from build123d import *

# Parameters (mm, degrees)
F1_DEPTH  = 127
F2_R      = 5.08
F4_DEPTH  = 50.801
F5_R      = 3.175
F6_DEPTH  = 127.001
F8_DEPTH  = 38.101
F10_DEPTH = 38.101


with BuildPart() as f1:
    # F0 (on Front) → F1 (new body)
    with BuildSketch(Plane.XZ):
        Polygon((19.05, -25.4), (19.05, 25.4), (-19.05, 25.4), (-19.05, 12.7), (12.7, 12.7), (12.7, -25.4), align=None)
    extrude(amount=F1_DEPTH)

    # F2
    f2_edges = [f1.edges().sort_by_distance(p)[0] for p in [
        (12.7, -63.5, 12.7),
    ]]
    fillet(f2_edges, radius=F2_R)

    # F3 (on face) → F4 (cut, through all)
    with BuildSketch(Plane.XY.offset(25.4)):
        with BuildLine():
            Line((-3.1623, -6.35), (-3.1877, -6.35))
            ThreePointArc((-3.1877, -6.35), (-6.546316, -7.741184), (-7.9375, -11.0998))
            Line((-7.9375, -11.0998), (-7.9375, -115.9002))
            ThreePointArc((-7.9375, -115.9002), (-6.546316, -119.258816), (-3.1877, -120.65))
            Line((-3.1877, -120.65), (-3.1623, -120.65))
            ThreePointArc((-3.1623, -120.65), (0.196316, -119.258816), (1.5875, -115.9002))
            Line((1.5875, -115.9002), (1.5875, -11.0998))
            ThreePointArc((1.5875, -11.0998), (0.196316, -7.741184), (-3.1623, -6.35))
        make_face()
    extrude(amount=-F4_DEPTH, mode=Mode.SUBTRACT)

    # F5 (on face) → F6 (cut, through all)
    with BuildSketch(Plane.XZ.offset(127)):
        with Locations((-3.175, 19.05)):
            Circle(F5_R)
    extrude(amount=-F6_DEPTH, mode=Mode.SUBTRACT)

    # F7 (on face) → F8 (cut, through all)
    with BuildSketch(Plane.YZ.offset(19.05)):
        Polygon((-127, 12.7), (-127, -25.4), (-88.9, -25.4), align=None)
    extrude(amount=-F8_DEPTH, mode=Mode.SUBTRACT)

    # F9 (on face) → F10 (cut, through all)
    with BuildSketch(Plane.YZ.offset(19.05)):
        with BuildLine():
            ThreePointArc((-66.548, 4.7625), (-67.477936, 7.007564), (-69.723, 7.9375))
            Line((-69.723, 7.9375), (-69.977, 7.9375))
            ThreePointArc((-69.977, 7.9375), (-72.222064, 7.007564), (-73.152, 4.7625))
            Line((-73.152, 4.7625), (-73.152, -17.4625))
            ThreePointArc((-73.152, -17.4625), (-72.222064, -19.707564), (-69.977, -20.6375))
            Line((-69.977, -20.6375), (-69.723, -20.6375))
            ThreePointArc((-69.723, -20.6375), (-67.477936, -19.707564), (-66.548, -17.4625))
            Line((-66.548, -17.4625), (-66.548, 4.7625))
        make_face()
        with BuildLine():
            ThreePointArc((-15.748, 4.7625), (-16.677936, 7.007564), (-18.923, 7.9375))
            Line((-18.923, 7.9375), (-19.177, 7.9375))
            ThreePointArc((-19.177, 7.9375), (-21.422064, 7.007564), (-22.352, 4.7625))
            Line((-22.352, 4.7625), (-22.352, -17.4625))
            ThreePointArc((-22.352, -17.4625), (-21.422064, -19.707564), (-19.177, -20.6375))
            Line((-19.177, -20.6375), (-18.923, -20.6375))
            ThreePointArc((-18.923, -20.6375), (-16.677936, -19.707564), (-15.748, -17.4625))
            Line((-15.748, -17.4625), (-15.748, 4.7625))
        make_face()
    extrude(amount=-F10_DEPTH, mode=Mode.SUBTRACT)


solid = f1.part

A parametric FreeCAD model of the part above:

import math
import FreeCAD as App
import Part
import Sketcher
Q = App.Units.Quantity


def edges_at(feature, points):
    """Names of the edges that pass closest to the given points."""
    edges = feature.Shape.Edges
    near = lambda p: min(range(len(edges)), key=lambda i: edges[i].distToShape(Part.Vertex(*p))[0])
    return sorted({f"Edge{near(p) + 1}" for p in points})

doc = App.newDocument("Part")
body = doc.addObject("PartDesign::Body", "Body")

sketch1 = doc.addObject("Sketcher::SketchObject", "Sketch")
body.addObject(sketch1)
sketch1.AttachmentSupport = (doc.XZ_Plane, [""])
sketch1.MapMode = "FlatFace"
sketch1.addGeometry([
    Part.LineSegment(App.Vector(19.05, -25.4, 0), App.Vector(19.05, 25.4, 0)),
    Part.LineSegment(App.Vector(19.05, 25.4, 0), App.Vector(-19.05, 25.4, 0)),
    Part.LineSegment(App.Vector(-19.05, 25.4, 0), App.Vector(-19.05, 12.7, 0)),
    Part.LineSegment(App.Vector(-19.05, 12.7, 0), App.Vector(12.7, 12.7, 0)),
    Part.LineSegment(App.Vector(12.7, 12.7, 0), App.Vector(12.7, -25.4, 0)),
    Part.LineSegment(App.Vector(12.7, -25.4, 0), App.Vector(19.05, -25.4, 0)),
], False)
sketch1.addConstraint([
    Sketcher.Constraint("Coincident", 0, 2, 1, 1),
    Sketcher.Constraint("Coincident", 1, 2, 2, 1),
    Sketcher.Constraint("Coincident", 2, 2, 3, 1),
    Sketcher.Constraint("Coincident", 3, 2, 4, 1),
    Sketcher.Constraint("Coincident", 4, 2, 5, 1),
    Sketcher.Constraint("Coincident", 5, 2, 0, 1),
    Sketcher.Constraint("Vertical", 0),
    Sketcher.Constraint("Horizontal", 1),
    Sketcher.Constraint("Vertical", 2),
    Sketcher.Constraint("Horizontal", 3),
    Sketcher.Constraint("Vertical", 4),
    Sketcher.Constraint("Horizontal", 5),
    Sketcher.Constraint("Symmetric", 1, 2, 5, 2, -1, 1),
    Sketcher.Constraint("Equal", 1, 4),
    Sketcher.Constraint("DistanceY", 0, 1, 0, 2, Q("2 in")),
    Sketcher.Constraint("DistanceX", 1, 2, 1, 1, Q("1.5 in")),
    Sketcher.Constraint("DistanceX", 3, 1, 3, 2, Q("1.25 in")),
])
pad1 = doc.addObject("PartDesign::Pad", "Pad")
body.addObject(pad1)
pad1.Profile = sketch1
pad1.Length = Q("5 in")
doc.recompute()

fillet = doc.addObject("PartDesign::Fillet", "Fillet")
body.addObject(fillet)
fillet.Base = (pad1, edges_at(pad1, [(12.7, -63.5, 12.7)]))
fillet.Radius = Q("0.2 in")

sketch2 = doc.addObject("Sketcher::SketchObject", "Sketch001")
body.addObject(sketch2)
sketch2.AttachmentSupport = (doc.XY_Plane, [""])
sketch2.MapMode = "FlatFace"
sketch2.AttachmentOffset = App.Placement(App.Vector(0, 0, 1 * 25.4), App.Rotation())
sketch2.addGeometry([
    Part.LineSegment(App.Vector(-3.1623, -6.35, 0), App.Vector(-3.1877, -6.35, 0)),
    Part.ArcOfCircle(Part.Circle(App.Vector(-3.187701, -11.099799, 0), App.Vector(0, 0, 1), 4.749799), math.radians(89.999991), math.radians(180.000009)),
    Part.LineSegment(App.Vector(-7.9375, -11.0998, 0), App.Vector(-7.9375, -115.9002, 0)),
    Part.ArcOfCircle(Part.Circle(App.Vector(-3.187701, -115.900201, 0), App.Vector(0, 0, 1), 4.749799), math.radians(179.999991), math.radians(270.000009)),
    Part.LineSegment(App.Vector(-3.1877, -120.65, 0), App.Vector(-3.1623, -120.65, 0)),
    Part.ArcOfCircle(Part.Circle(App.Vector(-3.162299, -115.900201, 0), App.Vector(0, 0, 1), 4.749799), math.radians(-90.000009), math.radians(0.000009)),
    Part.LineSegment(App.Vector(1.5875, -115.9002, 0), App.Vector(1.5875, -11.0998, 0)),
    Part.ArcOfCircle(Part.Circle(App.Vector(-3.162299, -11.099799, 0), App.Vector(0, 0, 1), 4.749799), math.radians(-0.000009), math.radians(90.000009)),
], False)
sketch2.addConstraint([
    Sketcher.Constraint("Tangent", 0, 2, 1, 1),
    Sketcher.Constraint("Tangent", 1, 2, 2, 1),
    Sketcher.Constraint("Tangent", 2, 2, 3, 1),
    Sketcher.Constraint("Tangent", 3, 2, 4, 1),
    Sketcher.Constraint("Tangent", 4, 2, 5, 1),
    Sketcher.Constraint("Tangent", 5, 2, 6, 1),
    Sketcher.Constraint("Tangent", 6, 2, 7, 1),
    Sketcher.Constraint("Tangent", 7, 2, 0, 1),
    Sketcher.Constraint("Horizontal", 0),
    Sketcher.Constraint("Vertical", 2),
    Sketcher.Constraint("Horizontal", 4),
    Sketcher.Constraint("Vertical", 6),
    Sketcher.Constraint("Equal", 1, 3),
    Sketcher.Constraint("Equal", 3, 5),
    Sketcher.Constraint("Equal", 5, 7),
    Sketcher.Constraint("Radius", 1, Q("0.187 in")),
    Sketcher.Constraint("DistanceX", 0, 2, 0, 1, Q("0.001 in")),
    Sketcher.Constraint("DistanceY", 2, 2, 2, 1, Q("4.126 in")),
    Sketcher.Constraint("DistanceY", 0, 2, -1, 1, Q("0.25 in")),
    Sketcher.Constraint("DistanceX", 1, 2, -1, 1, Q("0.3125 in")),
])
pocket1 = doc.addObject("PartDesign::Pocket", "Pocket")
body.addObject(pocket1)
pocket1.Profile = sketch2
pocket1.Type = "ThroughAll"

sketch3 = doc.addObject("Sketcher::SketchObject", "Sketch002")
body.addObject(sketch3)
sketch3.AttachmentSupport = (doc.XZ_Plane, [""])
sketch3.MapMode = "FlatFace"
sketch3.AttachmentOffset = App.Placement(App.Vector(0, 0, 5 * 25.4), App.Rotation())
sketch3.addGeometry(Part.Circle(App.Vector(-3.175, 19.05, 0), App.Vector(0, 0, 1), 3.175), False)
sketch3.addConstraint([
    Sketcher.Constraint("Diameter", 0, Q("0.25 in")),
    Sketcher.Constraint("DistanceY", -1, 1, 0, 3, Q("0.75 in")),
    Sketcher.Constraint("DistanceX", 0, 3, -1, 1, Q("0.125 in")),
])
pocket2 = doc.addObject("PartDesign::Pocket", "Pocket001")
body.addObject(pocket2)
pocket2.Profile = sketch3
pocket2.Type = "ThroughAll"

sketch4 = doc.addObject("Sketcher::SketchObject", "Sketch003")
body.addObject(sketch4)
sketch4.AttachmentSupport = (doc.YZ_Plane, [""])
sketch4.MapMode = "FlatFace"
sketch4.AttachmentOffset = App.Placement(App.Vector(0, 0, 0.75 * 25.4), App.Rotation())
sketch4.addGeometry([
    Part.LineSegment(App.Vector(-127, 12.7, 0), App.Vector(-127, -25.4, 0)),
    Part.LineSegment(App.Vector(-127, -25.4, 0), App.Vector(-88.9, -25.4, 0)),
    Part.LineSegment(App.Vector(-88.9, -25.4, 0), App.Vector(-127, 12.7, 0)),
], False)
sketch4.addConstraint([
    Sketcher.Constraint("Coincident", 0, 2, 1, 1),
    Sketcher.Constraint("Coincident", 1, 2, 2, 1),
    Sketcher.Constraint("Coincident", 2, 2, 0, 1),
    Sketcher.Constraint("Vertical", 0),
    Sketcher.Constraint("Horizontal", 1),
    Sketcher.Constraint("Equal", 1, 0),
    Sketcher.Constraint("DistanceX", 1, 1, 1, 2, Q("1.5 in")),
    Sketcher.Constraint("DistanceX", 0, 2, -1, 1, Q("5 in")),
    Sketcher.Constraint("DistanceY", 0, 2, -1, 1, Q("1 in")),
])
pocket3 = doc.addObject("PartDesign::Pocket", "Pocket002")
body.addObject(pocket3)
pocket3.Profile = sketch4
pocket3.Type = "ThroughAll"

sketch5 = doc.addObject("Sketcher::SketchObject", "Sketch004")
body.addObject(sketch5)
sketch5.AttachmentSupport = (doc.YZ_Plane, [""])
sketch5.MapMode = "FlatFace"
sketch5.AttachmentOffset = App.Placement(App.Vector(0, 0, 0.75 * 25.4), App.Rotation())
sketch5.addGeometry([
    Part.ArcOfCircle(Part.Circle(App.Vector(-69.723, 4.7625, 0), App.Vector(0, 0, 1), 3.175), math.radians(0.000002), math.radians(89.999998)),
    Part.LineSegment(App.Vector(-69.723, 7.9375, 0), App.Vector(-69.977, 7.9375, 0)),
    Part.ArcOfCircle(Part.Circle(App.Vector(-69.977, 4.7625, 0), App.Vector(0, 0, 1), 3.175), math.radians(90.000002), math.radians(179.999998)),
    Part.LineSegment(App.Vector(-73.152, 4.7625, 0), App.Vector(-73.152, -17.4625, 0)),
    Part.ArcOfCircle(Part.Circle(App.Vector(-69.977, -17.4625, 0), App.Vector(0, 0, 1), 3.175), math.radians(-179.999998), math.radians(-90.000002)),
    Part.LineSegment(App.Vector(-69.977, -20.6375, 0), App.Vector(-69.723, -20.6375, 0)),
    Part.ArcOfCircle(Part.Circle(App.Vector(-69.723, -17.4625, 0), App.Vector(0, 0, 1), 3.175), math.radians(-89.999998), math.radians(-0.000002)),
    Part.LineSegment(App.Vector(-66.548, -17.4625, 0), App.Vector(-66.548, 4.7625, 0)),
    Part.ArcOfCircle(Part.Circle(App.Vector(-18.923, 4.7625, 0), App.Vector(0, 0, 1), 3.175), math.radians(0.000002), math.radians(89.999998)),
    Part.LineSegment(App.Vector(-18.923, 7.9375, 0), App.Vector(-19.177, 7.9375, 0)),
    Part.ArcOfCircle(Part.Circle(App.Vector(-19.177, 4.7625, 0), App.Vector(0, 0, 1), 3.175), math.radians(90.000002), math.radians(179.999998)),
    Part.LineSegment(App.Vector(-22.352, 4.7625, 0), App.Vector(-22.352, -17.4625, 0)),
    Part.ArcOfCircle(Part.Circle(App.Vector(-19.177, -17.4625, 0), App.Vector(0, 0, 1), 3.175), math.radians(-179.999998), math.radians(-90.000002)),
    Part.LineSegment(App.Vector(-19.177, -20.6375, 0), App.Vector(-18.923, -20.6375, 0)),
    Part.ArcOfCircle(Part.Circle(App.Vector(-18.923, -17.4625, 0), App.Vector(0, 0, 1), 3.175), math.radians(-89.999998), math.radians(-0.000002)),
    Part.LineSegment(App.Vector(-15.748, -17.4625, 0), App.Vector(-15.748, 4.7625, 0)),
], False)
sketch5.addConstraint([
    Sketcher.Constraint("Tangent", 0, 2, 1, 1),
    Sketcher.Constraint("Tangent", 1, 2, 2, 1),
    Sketcher.Constraint("Tangent", 2, 2, 3, 1),
    Sketcher.Constraint("Tangent", 3, 2, 4, 1),
    Sketcher.Constraint("Tangent", 4, 2, 5, 1),
    Sketcher.Constraint("Tangent", 5, 2, 6, 1),
    Sketcher.Constraint("Tangent", 6, 2, 7, 1),
    Sketcher.Constraint("Tangent", 7, 2, 0, 1),
    Sketcher.Constraint("Tangent", 8, 2, 9, 1),
    Sketcher.Constraint("Tangent", 9, 2, 10, 1),
    Sketcher.Constraint("Tangent", 10, 2, 11, 1),
    Sketcher.Constraint("Tangent", 11, 2, 12, 1),
    Sketcher.Constraint("Tangent", 12, 2, 13, 1),
    Sketcher.Constraint("Tangent", 13, 2, 14, 1),
    Sketcher.Constraint("Tangent", 14, 2, 15, 1),
    Sketcher.Constraint("Tangent", 15, 2, 8, 1),
    Sketcher.Constraint("Horizontal", 1),
    Sketcher.Constraint("Vertical", 3),
    Sketcher.Constraint("Horizontal", 5),
    Sketcher.Constraint("Vertical", 7),
    Sketcher.Constraint("Horizontal", 9),
    Sketcher.Constraint("Vertical", 11),
    Sketcher.Constraint("Horizontal", 13),
    Sketcher.Constraint("Vertical", 15),
    Sketcher.Constraint("Equal", 0, 2),
    Sketcher.Constraint("Equal", 2, 4),
    Sketcher.Constraint("Equal", 4, 6),
    Sketcher.Constraint("Equal", 6, 8),
    Sketcher.Constraint("Equal", 8, 10),
    Sketcher.Constraint("Equal", 10, 12),
    Sketcher.Constraint("Equal", 12, 14),
    Sketcher.Constraint("Horizontal", 2, 3, 8, 3),
    Sketcher.Constraint("Horizontal", 6, 3, 12, 3),
    Sketcher.Constraint("Equal", 5, 9),
    Sketcher.Constraint("Radius", 0, Q("0.125 in")),
    Sketcher.Constraint("DistanceX", 0, 3, 8, 3, Q("2 in")),
    Sketcher.Constraint("DistanceY", 6, 3, 0, 2, Q("1 in")),
    Sketcher.Constraint("DistanceX", 1, 2, 1, 1, Q("0.01 in")),
    Sketcher.Constraint("DistanceX", 2, 2, -1, 1, Q("2.88 in")),
    Sketcher.Constraint("DistanceY", -1, 1, 0, 3, Q("0.1875 in")),
])
pocket4 = doc.addObject("PartDesign::Pocket", "Pocket003")
body.addObject(pocket4)
pocket4.Profile = sketch5
pocket4.Type = "ThroughAll"

doc.recompute()
